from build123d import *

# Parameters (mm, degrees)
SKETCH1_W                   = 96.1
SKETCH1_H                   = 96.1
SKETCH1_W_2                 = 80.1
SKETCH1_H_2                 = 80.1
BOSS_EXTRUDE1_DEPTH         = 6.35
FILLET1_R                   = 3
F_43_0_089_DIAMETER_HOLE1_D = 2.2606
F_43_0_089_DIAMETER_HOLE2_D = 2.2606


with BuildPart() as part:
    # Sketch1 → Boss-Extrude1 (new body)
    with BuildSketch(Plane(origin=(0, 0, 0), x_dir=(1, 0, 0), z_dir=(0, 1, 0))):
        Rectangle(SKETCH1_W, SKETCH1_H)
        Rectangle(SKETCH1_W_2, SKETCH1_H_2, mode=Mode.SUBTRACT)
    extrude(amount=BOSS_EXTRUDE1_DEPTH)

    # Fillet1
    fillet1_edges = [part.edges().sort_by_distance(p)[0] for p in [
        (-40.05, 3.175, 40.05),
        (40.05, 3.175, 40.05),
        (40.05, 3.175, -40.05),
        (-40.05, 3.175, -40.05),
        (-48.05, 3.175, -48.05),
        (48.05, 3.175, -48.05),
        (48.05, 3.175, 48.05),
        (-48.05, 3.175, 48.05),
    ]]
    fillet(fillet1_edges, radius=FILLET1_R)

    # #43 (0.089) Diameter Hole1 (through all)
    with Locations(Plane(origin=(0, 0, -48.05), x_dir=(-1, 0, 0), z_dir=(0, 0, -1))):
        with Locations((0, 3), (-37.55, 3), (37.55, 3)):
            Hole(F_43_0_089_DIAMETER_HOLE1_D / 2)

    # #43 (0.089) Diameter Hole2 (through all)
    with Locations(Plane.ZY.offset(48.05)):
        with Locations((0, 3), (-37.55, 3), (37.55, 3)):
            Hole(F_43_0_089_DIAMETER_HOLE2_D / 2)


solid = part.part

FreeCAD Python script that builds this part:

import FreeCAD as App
import Part
import Sketcher
Q = App.Units.Quantity


def edges_at(feature, points):
    """Names of the edges that pass closest to the given points."""
    edges = feature.Shape.Edges
    near = lambda p: min(range(len(edges)), key=lambda i: edges[i].distToShape(Part.Vertex(*p))[0])
    return sorted({f"Edge{near(p) + 1}" for p in points})

doc = App.newDocument("Part")
params = doc.addObject("Spreadsheet::Sheet", "Params")
for row, (alias, value) in enumerate([
    ("sketch1_width", "96.1 mm"),
    ("sketch1_width2", "80.1 mm"),
    ("pad1_length", "6.35 mm"),
    ("fillet_radius", "3 mm"),
    ("hole_diameter", "2.2606 mm"),
    ("hole2_diameter", "2.2606 mm"),
], start=1):
    params.set(f"A{row}", alias)
    params.set(f"B{row}", "=" + value)
    params.setAlias(f"B{row}", alias)

body = doc.addObject("PartDesign::Body", "Body")

sketch1 = body.newObject("Sketcher::SketchObject", "Sketch")
sketch1.AttachmentSupport = (doc.getObject("XZ_Plane"), [""])
sketch1.MapMode = "FlatFace"
sketch1.addGeometry(Part.LineSegment(App.Vector(-48, -48, 0), App.Vector(-48, 48, 0)), False)
sketch1.addGeometry(Part.LineSegment(App.Vector(-48, 48, 0), App.Vector(48, 48, 0)), False)
sketch1.addGeometry(Part.LineSegment(App.Vector(48, 48, 0), App.Vector(48, -48, 0)), False)
sketch1.addGeometry(Part.LineSegment(App.Vector(48, -48, 0), App.Vector(-48, -48, 0)), False)
sketch1.addGeometry(Part.LineSegment(App.Vector(40, 40, 0), App.Vector(-40, 40, 0)), False)
sketch1.addGeometry(Part.LineSegment(App.Vector(-40, 40, 0), App.Vector(-40, -40, 0)), False)
sketch1.addGeometry(Part.LineSegment(App.Vector(-40, -40, 0), App.Vector(40, -40, 0)), False)
sketch1.addGeometry(Part.LineSegment(App.Vector(40, -40, 0), App.Vector(40, 40, 0)), False)
sketch1.addConstraint(Sketcher.Constraint("Coincident", 0, 2, 1, 1))
sketch1.addConstraint(Sketcher.Constraint("Coincident", 1, 2, 2, 1))
sketch1.addConstraint(Sketcher.Constraint("Coincident", 2, 2, 3, 1))
sketch1.addConstraint(Sketcher.Constraint("Coincident", 3, 2, 0, 1))
sketch1.addConstraint(Sketcher.Constraint("Coincident", 4, 2, 5, 1))
sketch1.addConstraint(Sketcher.Constraint("Coincident", 5, 2, 6, 1))
sketch1.addConstraint(Sketcher.Constraint("Coincident", 6, 2, 7, 1))
sketch1.addConstraint(Sketcher.Constraint("Coincident", 7, 2, 4, 1))
sketch1.addConstraint(Sketcher.Constraint("Vertical", 0))
sketch1.addConstraint(Sketcher.Constraint("Horizontal", 1))
sketch1.addConstraint(Sketcher.Constraint("Vertical", 2))
sketch1.addConstraint(Sketcher.Constraint("Horizontal", 3))
sketch1.addConstraint(Sketcher.Constraint("Horizontal", 4))
sketch1.addConstraint(Sketcher.Constraint("Vertical", 5))
sketch1.addConstraint(Sketcher.Constraint("Horizontal", 6))
sketch1.addConstraint(Sketcher.Constraint("Vertical", 7))
sketch1.addConstraint(Sketcher.Constraint("Symmetric", 0, 2, 2, 2, -1, 1))
sketch1.addConstraint(Sketcher.Constraint("Symmetric", 4, 2, 6, 2, -1, 1))
sketch1.addConstraint(Sketcher.Constraint("Equal", 3, 0))
sketch1.addConstraint(Sketcher.Constraint("Equal", 6, 5))
sketch1.addConstraint(Sketcher.Constraint("DistanceX", 1, 1, 1, 2, Q("96.1 mm")))
sketch1.addConstraint(Sketcher.Constraint("DistanceX", 4, 2, 4, 1, Q("80.1 mm")))
sketch1.setExpression("Constraints[20]", "Params.sketch1_width")
sketch1.setExpression("Constraints[21]", "Params.sketch1_width2")
pad1 = body.newObject("PartDesign::Pad", "Pad")
pad1.Profile = sketch1
pad1.setExpression("Length", "Params.pad1_length")
pad1.Reversed = True
doc.recompute()

fillet = body.newObject("PartDesign::Fillet", "Fillet")
fillet.Base = (pad1, edges_at(pad1, [
    (-40.05, 3.175, 40.05),
    (40.05, 3.175, 40.05),
    (40.05, 3.175, -40.05),
    (-40.05, 3.175, -40.05),
    (-48.05, 3.175, -48.05),
    (48.05, 3.175, -48.05),
    (48.05, 3.175, 48.05),
    (-48.05, 3.175, 48.05),
]))
fillet.setExpression("Radius", "Params.fillet_radius")

sketch2 = body.newObject("Sketcher::SketchObject", "Sketch001")
sketch2.AttachmentSupport = (doc.getObject("XY_Plane"), [""])
sketch2.MapMode = "FlatFace"
sketch2.AttachmentOffset = App.Placement(App.Vector(0, 0, -48.05), App.Rotation())
sketch2.addGeometry(Part.Circle(App.Vector(0, 3, 0), App.Vector(0, 0, 1), 1.1), False)
sketch2.addGeometry(Part.Circle(App.Vector(37.5, 3, 0), App.Vector(0, 0, 1), 1.1), False)
sketch2.addGeometry(Part.Circle(App.Vector(-37.5, 3, 0), App.Vector(0, 0, 1), 1.1), False)
sketch2.addConstraint(Sketcher.Constraint("Equal", 0, 1))
sketch2.addConstraint(Sketcher.Constraint("Equal", 1, 2))
sketch2.addConstraint(Sketcher.Constraint("Symmetric", 1, 3, 2, 3, -2))
sketch2.addConstraint(Sketcher.Constraint("PointOnObject", 0, 3, -2))
sketch2.addConstraint(Sketcher.Constraint("Horizontal", 0, 3, 1, 3))
sketch2.addConstraint(Sketcher.Constraint("DistanceY", -1, 1, 0, 3, Q("3 mm")))
sketch2.addConstraint(Sketcher.Constraint("Diameter", 0, Q("2.2606 mm")))
sketch2.addConstraint(Sketcher.Constraint("DistanceX", 2, 3, 1, 3, Q("75.1 mm")))
doc.recompute()
hole = body.newObject("PartDesign::Hole", "Hole")
hole.Profile = sketch2
hole.ThreadType = "None"
hole.setExpression("Diameter", "Params.hole_diameter")
hole.DepthType = "ThroughAll"
hole.Reversed = True

sketch3 = body.newObject("Sketcher::SketchObject", "Sketch002")
sketch3.AttachmentSupport = (doc.getObject("YZ_Plane"), [""])
sketch3.MapMode = "FlatFace"
sketch3.AttachmentOffset = App.Placement(App.Vector(0, 0, -48.05), App.Rotation())
sketch3.addGeometry(Part.Circle(App.Vector(3, 0, 0), App.Vector(0, 0, 1), 1.1), False)
sketch3.addGeometry(Part.Circle(App.Vector(3, -37.5, 0), App.Vector(0, 0, 1), 1.1), False)
sketch3.addGeometry(Part.Circle(App.Vector(3, 37.5, 0), App.Vector(0, 0, 1), 1.1), False)
sketch3.addConstraint(Sketcher.Constraint("Equal", 0, 1))
sketch3.addConstraint(Sketcher.Constraint("Equal", 1, 2))
sketch3.addConstraint(Sketcher.Constraint("Symmetric", 1, 3, 2, 3, -1))
sketch3.addConstraint(Sketcher.Constraint("PointOnObject", 0, 3, -1))
sketch3.addConstraint(Sketcher.Constraint("Vertical", 0, 3, 1, 3))
sketch3.addConstraint(Sketcher.Constraint("DistanceX", -1, 1, 0, 3, Q("3 mm")))
sketch3.addConstraint(Sketcher.Constraint("Diameter", 0, Q("2.2606 mm")))
sketch3.addConstraint(Sketcher.Constraint("DistanceY", 1, 3, 2, 3, Q("75.1 mm")))
doc.recompute()
hole2 = body.newObject("PartDesign::Hole", "Hole001")
hole2.Profile = sketch3
hole2.ThreadType = "None"
hole2.setExpression("Diameter", "Params.hole2_diameter")
hole2.DepthType = "ThroughAll"
hole2.Reversed = True

doc.recompute()
